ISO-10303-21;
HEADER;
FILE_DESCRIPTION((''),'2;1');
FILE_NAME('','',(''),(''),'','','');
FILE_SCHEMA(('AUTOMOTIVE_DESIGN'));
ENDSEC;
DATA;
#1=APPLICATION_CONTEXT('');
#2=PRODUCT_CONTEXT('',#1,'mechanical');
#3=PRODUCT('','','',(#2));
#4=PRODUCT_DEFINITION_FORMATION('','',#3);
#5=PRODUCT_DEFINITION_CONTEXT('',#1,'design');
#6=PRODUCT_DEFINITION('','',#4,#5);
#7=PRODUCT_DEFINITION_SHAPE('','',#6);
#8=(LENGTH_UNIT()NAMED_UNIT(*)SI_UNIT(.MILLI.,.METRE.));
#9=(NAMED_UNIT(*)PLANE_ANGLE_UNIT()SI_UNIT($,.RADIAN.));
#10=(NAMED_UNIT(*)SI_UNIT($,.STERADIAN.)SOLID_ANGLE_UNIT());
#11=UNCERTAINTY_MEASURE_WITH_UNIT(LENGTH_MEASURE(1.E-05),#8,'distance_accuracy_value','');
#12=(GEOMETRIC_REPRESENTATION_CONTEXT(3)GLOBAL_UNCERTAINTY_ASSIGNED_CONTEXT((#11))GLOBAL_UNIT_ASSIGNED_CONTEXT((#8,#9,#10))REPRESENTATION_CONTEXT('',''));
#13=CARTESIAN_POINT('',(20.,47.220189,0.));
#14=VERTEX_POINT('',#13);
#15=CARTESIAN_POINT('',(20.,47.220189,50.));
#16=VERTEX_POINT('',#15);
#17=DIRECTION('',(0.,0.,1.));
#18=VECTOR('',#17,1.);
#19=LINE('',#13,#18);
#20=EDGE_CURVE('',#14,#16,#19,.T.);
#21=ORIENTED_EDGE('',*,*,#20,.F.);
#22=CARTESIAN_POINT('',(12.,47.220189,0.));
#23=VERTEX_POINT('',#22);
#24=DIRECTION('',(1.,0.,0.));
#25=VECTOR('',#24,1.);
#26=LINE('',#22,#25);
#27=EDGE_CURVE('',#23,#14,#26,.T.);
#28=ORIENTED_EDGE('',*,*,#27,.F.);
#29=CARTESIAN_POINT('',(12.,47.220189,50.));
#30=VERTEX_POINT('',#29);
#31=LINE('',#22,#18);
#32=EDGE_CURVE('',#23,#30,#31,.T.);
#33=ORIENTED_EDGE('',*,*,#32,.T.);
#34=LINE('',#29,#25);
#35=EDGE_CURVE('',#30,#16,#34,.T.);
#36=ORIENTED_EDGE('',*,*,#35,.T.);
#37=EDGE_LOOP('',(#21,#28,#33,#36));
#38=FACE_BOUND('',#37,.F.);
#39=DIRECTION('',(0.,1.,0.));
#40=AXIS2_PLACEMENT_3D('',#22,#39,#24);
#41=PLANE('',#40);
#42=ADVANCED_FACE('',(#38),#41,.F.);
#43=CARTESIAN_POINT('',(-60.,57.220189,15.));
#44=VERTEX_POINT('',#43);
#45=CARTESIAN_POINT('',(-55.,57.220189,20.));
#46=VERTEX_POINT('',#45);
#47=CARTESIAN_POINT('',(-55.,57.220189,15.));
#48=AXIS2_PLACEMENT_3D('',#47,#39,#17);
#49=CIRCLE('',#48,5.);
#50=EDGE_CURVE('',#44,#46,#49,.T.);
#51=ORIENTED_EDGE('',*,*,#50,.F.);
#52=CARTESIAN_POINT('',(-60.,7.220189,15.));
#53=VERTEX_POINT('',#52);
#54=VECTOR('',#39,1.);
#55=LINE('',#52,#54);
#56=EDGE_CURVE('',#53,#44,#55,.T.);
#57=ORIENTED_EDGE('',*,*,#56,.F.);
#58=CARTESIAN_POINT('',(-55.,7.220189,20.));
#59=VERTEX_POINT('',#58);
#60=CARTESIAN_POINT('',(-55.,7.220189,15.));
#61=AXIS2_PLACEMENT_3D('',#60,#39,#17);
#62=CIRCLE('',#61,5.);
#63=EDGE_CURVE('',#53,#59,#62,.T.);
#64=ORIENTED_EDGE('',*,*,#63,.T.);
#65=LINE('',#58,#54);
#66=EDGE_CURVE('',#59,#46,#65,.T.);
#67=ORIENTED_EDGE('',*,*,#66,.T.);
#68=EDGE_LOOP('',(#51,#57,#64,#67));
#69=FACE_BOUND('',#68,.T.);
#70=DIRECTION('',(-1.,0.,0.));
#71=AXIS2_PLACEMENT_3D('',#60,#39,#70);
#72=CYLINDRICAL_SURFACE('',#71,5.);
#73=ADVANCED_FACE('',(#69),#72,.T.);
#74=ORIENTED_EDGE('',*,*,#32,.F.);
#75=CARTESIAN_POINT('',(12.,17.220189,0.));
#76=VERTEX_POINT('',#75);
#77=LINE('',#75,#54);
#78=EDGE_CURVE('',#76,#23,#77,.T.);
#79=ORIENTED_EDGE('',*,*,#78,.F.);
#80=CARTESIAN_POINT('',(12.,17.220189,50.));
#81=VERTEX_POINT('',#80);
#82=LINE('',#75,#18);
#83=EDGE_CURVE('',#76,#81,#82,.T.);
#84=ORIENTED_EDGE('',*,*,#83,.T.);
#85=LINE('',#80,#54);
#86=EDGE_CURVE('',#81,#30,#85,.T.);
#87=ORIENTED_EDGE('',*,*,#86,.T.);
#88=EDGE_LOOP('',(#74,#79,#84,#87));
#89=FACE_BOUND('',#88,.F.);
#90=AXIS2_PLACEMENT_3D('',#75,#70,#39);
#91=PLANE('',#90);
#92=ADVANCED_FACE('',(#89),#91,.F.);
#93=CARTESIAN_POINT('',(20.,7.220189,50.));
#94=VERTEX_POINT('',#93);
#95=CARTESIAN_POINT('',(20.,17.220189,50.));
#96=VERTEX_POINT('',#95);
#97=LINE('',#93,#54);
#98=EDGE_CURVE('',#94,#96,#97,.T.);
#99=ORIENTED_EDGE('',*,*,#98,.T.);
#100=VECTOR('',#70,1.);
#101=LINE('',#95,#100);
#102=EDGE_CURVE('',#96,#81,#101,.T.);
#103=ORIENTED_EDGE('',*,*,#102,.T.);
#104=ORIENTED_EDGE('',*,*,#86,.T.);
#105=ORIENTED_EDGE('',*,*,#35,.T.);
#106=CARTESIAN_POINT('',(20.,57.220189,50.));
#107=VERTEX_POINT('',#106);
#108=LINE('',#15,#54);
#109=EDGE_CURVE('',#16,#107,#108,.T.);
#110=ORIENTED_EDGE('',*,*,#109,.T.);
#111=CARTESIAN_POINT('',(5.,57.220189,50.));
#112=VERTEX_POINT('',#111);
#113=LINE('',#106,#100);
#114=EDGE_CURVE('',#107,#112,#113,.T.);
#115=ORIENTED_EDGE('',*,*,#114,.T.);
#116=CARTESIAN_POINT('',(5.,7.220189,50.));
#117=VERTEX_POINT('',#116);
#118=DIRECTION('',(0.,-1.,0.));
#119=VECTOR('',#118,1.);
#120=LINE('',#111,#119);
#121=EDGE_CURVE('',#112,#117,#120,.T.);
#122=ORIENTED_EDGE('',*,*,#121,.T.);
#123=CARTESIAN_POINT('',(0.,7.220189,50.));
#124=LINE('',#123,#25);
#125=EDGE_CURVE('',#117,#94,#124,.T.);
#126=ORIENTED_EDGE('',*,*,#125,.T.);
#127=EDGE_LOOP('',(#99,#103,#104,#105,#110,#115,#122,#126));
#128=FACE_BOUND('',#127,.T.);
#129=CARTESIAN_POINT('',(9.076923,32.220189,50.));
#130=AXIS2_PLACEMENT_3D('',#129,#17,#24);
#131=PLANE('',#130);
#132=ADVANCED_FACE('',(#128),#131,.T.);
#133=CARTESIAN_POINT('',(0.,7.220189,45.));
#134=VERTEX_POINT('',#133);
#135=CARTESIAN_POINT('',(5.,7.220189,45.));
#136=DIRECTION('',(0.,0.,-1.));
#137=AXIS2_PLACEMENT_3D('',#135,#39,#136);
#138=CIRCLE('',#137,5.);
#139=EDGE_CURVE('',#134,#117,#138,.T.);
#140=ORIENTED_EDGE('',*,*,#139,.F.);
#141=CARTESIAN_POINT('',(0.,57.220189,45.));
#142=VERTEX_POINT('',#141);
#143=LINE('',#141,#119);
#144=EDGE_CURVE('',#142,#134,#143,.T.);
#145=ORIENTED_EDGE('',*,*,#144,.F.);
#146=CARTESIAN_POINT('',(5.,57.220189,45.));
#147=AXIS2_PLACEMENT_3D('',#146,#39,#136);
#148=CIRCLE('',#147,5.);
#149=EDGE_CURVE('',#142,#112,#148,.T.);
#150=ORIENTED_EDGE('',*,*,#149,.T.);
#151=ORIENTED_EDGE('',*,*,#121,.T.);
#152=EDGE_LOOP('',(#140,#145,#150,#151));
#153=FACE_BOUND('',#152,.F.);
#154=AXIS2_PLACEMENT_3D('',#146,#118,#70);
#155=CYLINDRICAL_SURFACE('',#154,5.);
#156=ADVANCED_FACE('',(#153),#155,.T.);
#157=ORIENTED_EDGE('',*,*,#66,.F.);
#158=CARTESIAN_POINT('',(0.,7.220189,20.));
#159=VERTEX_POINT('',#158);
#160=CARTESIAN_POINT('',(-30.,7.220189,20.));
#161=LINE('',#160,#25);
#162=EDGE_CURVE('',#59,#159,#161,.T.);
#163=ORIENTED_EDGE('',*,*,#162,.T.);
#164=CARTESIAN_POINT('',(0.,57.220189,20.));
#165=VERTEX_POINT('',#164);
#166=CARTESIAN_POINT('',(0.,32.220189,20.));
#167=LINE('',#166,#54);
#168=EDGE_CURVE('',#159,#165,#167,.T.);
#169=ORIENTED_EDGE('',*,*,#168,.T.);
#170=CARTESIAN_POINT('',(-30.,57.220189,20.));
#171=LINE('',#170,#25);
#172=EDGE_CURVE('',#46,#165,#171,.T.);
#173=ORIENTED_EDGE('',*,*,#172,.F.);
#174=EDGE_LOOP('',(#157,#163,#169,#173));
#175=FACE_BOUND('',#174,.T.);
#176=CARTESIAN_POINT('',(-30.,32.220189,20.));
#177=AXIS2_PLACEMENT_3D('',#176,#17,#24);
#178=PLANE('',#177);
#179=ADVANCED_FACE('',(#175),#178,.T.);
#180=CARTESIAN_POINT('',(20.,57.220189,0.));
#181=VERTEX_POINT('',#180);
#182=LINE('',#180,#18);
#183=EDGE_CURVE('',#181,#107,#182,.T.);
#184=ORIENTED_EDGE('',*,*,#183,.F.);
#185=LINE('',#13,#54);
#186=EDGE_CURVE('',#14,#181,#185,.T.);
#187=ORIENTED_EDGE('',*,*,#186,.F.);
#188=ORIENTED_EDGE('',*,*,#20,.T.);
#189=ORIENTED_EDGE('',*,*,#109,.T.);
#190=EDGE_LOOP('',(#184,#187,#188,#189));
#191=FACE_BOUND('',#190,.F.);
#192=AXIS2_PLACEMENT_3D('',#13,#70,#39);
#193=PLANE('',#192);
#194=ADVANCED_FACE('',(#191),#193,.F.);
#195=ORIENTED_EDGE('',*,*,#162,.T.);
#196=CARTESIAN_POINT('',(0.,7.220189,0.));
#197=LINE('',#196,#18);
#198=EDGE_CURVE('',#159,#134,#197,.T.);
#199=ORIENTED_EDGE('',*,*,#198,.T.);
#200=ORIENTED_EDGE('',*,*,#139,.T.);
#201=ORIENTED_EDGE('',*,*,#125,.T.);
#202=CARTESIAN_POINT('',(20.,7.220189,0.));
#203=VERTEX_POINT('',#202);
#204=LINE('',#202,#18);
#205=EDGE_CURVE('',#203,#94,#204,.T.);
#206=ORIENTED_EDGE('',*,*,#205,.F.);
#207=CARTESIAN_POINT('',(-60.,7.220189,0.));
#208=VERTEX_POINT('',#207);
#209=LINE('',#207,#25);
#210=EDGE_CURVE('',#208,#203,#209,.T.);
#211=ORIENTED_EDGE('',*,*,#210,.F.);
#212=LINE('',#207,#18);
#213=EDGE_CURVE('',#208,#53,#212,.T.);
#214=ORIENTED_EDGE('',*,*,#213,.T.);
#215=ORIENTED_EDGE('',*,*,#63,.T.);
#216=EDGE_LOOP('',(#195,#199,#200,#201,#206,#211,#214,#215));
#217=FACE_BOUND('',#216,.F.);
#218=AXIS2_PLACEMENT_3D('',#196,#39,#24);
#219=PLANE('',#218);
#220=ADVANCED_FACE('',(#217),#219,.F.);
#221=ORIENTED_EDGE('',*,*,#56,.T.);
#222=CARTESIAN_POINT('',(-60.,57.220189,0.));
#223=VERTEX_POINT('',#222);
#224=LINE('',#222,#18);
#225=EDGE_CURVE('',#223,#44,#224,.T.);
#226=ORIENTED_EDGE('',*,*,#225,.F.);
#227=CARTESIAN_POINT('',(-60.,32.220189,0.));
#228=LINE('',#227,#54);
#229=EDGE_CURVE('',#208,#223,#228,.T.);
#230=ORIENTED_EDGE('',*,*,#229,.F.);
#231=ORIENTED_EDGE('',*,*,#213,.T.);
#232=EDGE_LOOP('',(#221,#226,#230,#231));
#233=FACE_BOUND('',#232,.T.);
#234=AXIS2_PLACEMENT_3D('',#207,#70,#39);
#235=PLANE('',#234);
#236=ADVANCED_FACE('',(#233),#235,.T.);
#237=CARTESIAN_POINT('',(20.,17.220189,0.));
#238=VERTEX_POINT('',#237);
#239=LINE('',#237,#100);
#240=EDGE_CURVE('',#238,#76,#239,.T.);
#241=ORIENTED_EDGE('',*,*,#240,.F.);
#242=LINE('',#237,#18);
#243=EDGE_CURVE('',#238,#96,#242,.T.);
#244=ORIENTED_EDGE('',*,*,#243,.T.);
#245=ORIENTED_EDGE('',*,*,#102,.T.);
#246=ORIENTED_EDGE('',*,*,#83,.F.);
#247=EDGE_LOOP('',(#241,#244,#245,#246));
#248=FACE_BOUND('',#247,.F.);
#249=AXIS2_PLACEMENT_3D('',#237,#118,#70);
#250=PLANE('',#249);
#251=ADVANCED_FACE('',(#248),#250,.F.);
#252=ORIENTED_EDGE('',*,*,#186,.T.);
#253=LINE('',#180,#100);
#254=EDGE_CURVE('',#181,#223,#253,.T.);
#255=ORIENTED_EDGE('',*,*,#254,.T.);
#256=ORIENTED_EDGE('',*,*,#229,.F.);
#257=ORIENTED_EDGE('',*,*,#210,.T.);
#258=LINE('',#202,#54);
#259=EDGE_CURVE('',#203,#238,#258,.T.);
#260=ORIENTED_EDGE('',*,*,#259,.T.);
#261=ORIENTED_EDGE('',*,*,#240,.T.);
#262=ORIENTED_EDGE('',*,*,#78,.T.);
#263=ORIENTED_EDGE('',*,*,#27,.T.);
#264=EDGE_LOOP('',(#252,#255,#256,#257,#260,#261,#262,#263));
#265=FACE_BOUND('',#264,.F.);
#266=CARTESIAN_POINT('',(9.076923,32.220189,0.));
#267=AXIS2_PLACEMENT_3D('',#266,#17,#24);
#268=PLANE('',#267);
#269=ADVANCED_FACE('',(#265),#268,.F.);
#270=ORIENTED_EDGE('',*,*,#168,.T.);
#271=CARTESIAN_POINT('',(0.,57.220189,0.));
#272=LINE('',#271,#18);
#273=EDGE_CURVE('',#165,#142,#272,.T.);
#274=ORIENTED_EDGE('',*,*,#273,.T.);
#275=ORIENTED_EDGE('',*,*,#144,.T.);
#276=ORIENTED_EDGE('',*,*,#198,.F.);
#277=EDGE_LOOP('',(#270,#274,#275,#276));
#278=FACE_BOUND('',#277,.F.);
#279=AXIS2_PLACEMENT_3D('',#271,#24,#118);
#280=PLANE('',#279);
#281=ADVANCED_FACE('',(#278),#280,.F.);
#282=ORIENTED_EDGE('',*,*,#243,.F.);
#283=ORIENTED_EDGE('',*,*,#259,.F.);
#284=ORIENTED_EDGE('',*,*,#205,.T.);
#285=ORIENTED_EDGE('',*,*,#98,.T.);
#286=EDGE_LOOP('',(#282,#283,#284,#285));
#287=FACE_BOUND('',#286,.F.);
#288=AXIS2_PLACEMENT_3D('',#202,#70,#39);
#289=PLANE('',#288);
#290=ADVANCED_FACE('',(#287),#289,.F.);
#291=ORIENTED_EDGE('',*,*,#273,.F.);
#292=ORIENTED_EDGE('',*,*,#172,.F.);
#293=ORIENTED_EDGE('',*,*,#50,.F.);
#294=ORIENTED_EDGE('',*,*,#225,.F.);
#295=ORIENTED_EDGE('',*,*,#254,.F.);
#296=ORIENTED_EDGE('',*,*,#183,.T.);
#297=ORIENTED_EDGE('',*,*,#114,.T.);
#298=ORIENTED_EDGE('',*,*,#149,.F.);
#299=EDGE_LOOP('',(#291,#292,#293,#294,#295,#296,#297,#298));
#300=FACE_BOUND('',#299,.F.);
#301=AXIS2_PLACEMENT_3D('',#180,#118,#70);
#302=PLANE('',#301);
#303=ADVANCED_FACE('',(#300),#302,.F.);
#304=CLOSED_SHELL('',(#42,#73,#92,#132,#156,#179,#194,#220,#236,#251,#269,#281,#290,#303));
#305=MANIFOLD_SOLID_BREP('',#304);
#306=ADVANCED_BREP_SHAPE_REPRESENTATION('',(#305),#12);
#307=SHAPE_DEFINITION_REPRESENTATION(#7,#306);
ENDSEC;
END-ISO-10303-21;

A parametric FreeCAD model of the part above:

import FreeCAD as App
import Part
import Sketcher
from FreeCAD import Vector
Q = App.Units.Quantity


def edges_at(feature, points):
    """Names of the edges that pass closest to the given points."""
    edges = feature.Shape.Edges
    near = lambda p: min(range(len(edges)), key=lambda i: edges[i].distToShape(Part.Vertex(*p))[0])
    return sorted({f"Edge{near(p) + 1}" for p in points})


def add_polygon(sketch, points):
    """Adds a closed chain of lines whose ends are joined by coincident constraints."""
    first, n = sketch.GeometryCount, len(points)
    for a, b in zip(points, points[1:] + points[:1]):
        sketch.addGeometry(Part.LineSegment(App.Vector(*a, 0), App.Vector(*b, 0)), False)
    for i in range(n):
        sketch.addConstraint(Sketcher.Constraint("Coincident", first + i, 2, first + (i + 1) % n, 1))

doc = App.newDocument("Part")
body = doc.addObject("PartDesign::Body", "Body")

# Sketch on XY plane
sketch1 = body.newObject("Sketcher::SketchObject", "Sketch")
sketch1.AttachmentSupport = (doc.getObject("XY_Plane"), [""])
sketch1.MapMode = "FlatFace"
add_polygon(sketch1, [(-60, 57), (-60, 7), (0, 7), (0, 57)])  # lines 0-3
sketch1.addConstraint([
    Sketcher.Constraint("Vertical", 0),
    Sketcher.Constraint("Horizontal", 1),
    Sketcher.Constraint("Vertical", 2),
    Sketcher.Constraint("Horizontal", 3),
    Sketcher.Constraint("PointOnObject", 1, 2, -2),
    Sketcher.Constraint("DistanceX", 1, 1, 1, 2, Q("60 mm")),
    Sketcher.Constraint("DistanceY", 0, 2, 0, 1, Q("50 mm")),
    Sketcher.Constraint("DistanceY", -1, 1, 0, 2, Q("7.220189 mm")),
])
pad1 = body.newObject("PartDesign::Pad", "Pad")
pad1.Profile = sketch1
pad1.Length = 20

# Sketch on XY plane
sketch2 = body.newObject("Sketcher::SketchObject", "Sketch001")
sketch2.AttachmentSupport = (doc.getObject("XY_Plane"), [""])
sketch2.MapMode = "FlatFace"
add_polygon(sketch2, [(0, 57), (0, 7), (20, 7), (20, 17), (12, 17), (12, 47), (20, 47), (20, 57)])  # lines 0-7
sketch2.addConstraint([
    Sketcher.Constraint("Vertical", 0),
    Sketcher.Constraint("Horizontal", 1),
    Sketcher.Constraint("Vertical", 2),
    Sketcher.Constraint("Horizontal", 3),
    Sketcher.Constraint("Vertical", 4),
    Sketcher.Constraint("Horizontal", 5),
    Sketcher.Constraint("Vertical", 6),
    Sketcher.Constraint("Horizontal", 7),
    Sketcher.Constraint("PointOnObject", 0, 2, -2),
    Sketcher.Constraint("Vertical", 2, 2, 5, 2),
    Sketcher.Constraint("Equal", 2, 6),
    Sketcher.Constraint("DistanceX", 1, 1, 1, 2, Q("20 mm")),
    Sketcher.Constraint("DistanceX", 3, 2, 3, 1, Q("8 mm")),
    Sketcher.Constraint("DistanceY", 0, 2, 0, 1, Q("50 mm")),
    Sketcher.Constraint("DistanceY", 2, 1, 2, 2, Q("10 mm")),
    Sketcher.Constraint("DistanceY", -1, 1, 0, 2, Q("7.220189 mm")),
])
pad2 = body.newObject("PartDesign::Pad", "Pad001")
pad2.Profile = sketch2
pad2.Length = 50
doc.recompute()

fillet = body.newObject("PartDesign::Fillet", "Fillet")
fillet.Base = (pad2, edges_at(pad2, [(0, 32.22, 50), (-60, 32.22, 20)]))
fillet.Radius = 5

doc.recompute()
